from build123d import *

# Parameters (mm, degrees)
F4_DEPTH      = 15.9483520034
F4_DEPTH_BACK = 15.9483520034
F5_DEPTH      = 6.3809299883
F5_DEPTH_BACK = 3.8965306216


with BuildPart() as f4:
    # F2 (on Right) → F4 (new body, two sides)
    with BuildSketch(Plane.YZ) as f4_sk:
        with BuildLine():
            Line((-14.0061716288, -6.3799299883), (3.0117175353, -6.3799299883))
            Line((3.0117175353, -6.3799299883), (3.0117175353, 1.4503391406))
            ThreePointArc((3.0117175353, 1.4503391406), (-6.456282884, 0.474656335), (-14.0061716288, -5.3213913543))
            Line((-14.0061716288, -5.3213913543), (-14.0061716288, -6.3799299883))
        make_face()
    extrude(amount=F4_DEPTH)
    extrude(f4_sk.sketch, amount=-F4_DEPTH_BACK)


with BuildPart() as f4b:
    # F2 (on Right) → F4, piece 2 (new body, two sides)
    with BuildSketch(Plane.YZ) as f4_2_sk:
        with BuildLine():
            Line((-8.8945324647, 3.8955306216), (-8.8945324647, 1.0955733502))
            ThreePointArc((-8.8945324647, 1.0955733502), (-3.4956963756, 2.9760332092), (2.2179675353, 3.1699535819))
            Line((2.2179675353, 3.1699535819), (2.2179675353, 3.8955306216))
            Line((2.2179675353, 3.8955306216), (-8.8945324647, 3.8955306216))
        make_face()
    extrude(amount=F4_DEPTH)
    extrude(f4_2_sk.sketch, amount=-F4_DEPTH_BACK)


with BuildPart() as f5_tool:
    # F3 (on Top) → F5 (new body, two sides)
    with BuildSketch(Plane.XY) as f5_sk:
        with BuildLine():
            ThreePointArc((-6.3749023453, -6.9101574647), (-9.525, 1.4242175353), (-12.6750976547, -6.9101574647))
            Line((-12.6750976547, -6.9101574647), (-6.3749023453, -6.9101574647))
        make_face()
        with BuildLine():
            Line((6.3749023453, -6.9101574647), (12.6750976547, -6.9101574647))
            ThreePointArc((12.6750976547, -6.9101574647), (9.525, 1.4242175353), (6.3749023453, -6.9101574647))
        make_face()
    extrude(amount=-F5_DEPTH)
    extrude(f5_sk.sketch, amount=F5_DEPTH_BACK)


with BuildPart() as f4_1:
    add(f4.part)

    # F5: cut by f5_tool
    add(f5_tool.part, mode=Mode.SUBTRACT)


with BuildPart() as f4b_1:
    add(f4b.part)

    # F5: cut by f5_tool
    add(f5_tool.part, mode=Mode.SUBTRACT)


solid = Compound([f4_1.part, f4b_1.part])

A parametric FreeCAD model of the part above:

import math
import FreeCAD as App
import Part
import Sketcher

V = App.Vector
Q = App.Units.Quantity

doc = App.newDocument("Part")
body = doc.addObject("PartDesign::Body", "Body")

sketch1 = doc.addObject("Sketcher::SketchObject", "Sketch")
body.addObject(sketch1)
sketch1.AttachmentSupport = (doc.YZ_Plane, [""])
sketch1.MapMode = "FlatFace"
sketch1.addGeometry([
    Part.LineSegment(V(-14.006172, -6.37993, 0), V(3.011718, -6.37993, 0)),
    Part.LineSegment(V(3.011718, -6.37993, 0), V(3.011718, 1.450339, 0)),
    Part.ArcOfCircle(Part.Circle(V(0, -15.750488, 0), V(0, 0, 1), 17.4625), math.radians(80.068671), math.radians(143.328363)),
    Part.LineSegment(V(-14.006172, -5.321391, 0), V(-14.006172, -6.37993, 0)),
], False)
sketch1.addConstraint([
    Sketcher.Constraint("Coincident", 0, 2, 1, 1),
    Sketcher.Constraint("Coincident", 1, 2, 2, 1),
    Sketcher.Constraint("Coincident", 2, 2, 3, 1),
    Sketcher.Constraint("Coincident", 3, 2, 0, 1),
    Sketcher.Constraint("Horizontal", 0),
    Sketcher.Constraint("Vertical", 1),
    Sketcher.Constraint("Vertical", 3),
    Sketcher.Constraint("PointOnObject", 2, 3, -2),
    Sketcher.Constraint("Radius", 2, Q("0.6875 in")),
    Sketcher.Constraint("DistanceY", -1, 1, 1, 2, Q("0.0571 in")),
    Sketcher.Constraint("DistanceX", 0, 1, 0, 2, 17.017889),
    Sketcher.Constraint("DistanceY", 1, 1, 1, 2, 7.830269),
    Sketcher.Constraint("DistanceY", 3, 2, 3, 1, 1.058539),
])
pad1 = doc.addObject("PartDesign::Pad", "Pad")
body.addObject(pad1)
pad1.Profile = sketch1
pad1.Type = "TwoLengths"
pad1.Length = 15.948352
pad1.Length2 = 15.948352
body2 = doc.addObject("PartDesign::Body", "Body001")

sketch2 = doc.addObject("Sketcher::SketchObject", "Sketch001")
body2.addObject(sketch2)
sketch2.AttachmentSupport = (doc.getObject("YZ_Plane001"), [""])
sketch2.MapMode = "FlatFace"
sketch2.addGeometry([
    Part.LineSegment(V(-8.894532, 3.895531, 0), V(-8.894532, 1.095573, 0)),
    Part.ArcOfCircle(Part.Circle(V(0, -15.750488, 0), V(0, 0, 1), 19.05), math.radians(83.31396), math.radians(117.833554)),
    Part.LineSegment(V(2.217968, 3.169954, 0), V(2.217968, 3.895531, 0)),
    Part.LineSegment(V(2.217968, 3.895531, 0), V(-8.894532, 3.895531, 0)),
], False)
sketch2.addConstraint([
    Sketcher.Constraint("Coincident", 0, 2, 1, 2),
    Sketcher.Constraint("Coincident", 1, 1, 2, 1),
    Sketcher.Constraint("Coincident", 2, 2, 3, 1),
    Sketcher.Constraint("Coincident", 3, 2, 0, 1),
    Sketcher.Constraint("Vertical", 0),
    Sketcher.Constraint("Vertical", 2),
    Sketcher.Constraint("Horizontal", 3),
    Sketcher.Constraint("PointOnObject", 1, 3, -2),
    Sketcher.Constraint("Radius", 1, Q("0.75 in")),
    Sketcher.Constraint("DistanceX", 3, 2, 3, 1, Q("0.4375 in")),
    Sketcher.Constraint("DistanceY", 0, 2, 0, 1, 2.799957),
    Sketcher.Constraint("DistanceY", 2, 1, 2, 2, 0.725577),
    Sketcher.Constraint("DistanceY", 1, 3, -1, 1, 15.750488),
])
pad2 = doc.addObject("PartDesign::Pad", "Pad001")
body2.addObject(pad2)
pad2.Profile = sketch2
pad2.Type = "TwoLengths"
pad2.Length = 15.948352
pad2.Length2 = 15.948352
body3 = doc.addObject("PartDesign::Body", "Body002")
body3.AllowCompound = True

sketch3 = doc.addObject("Sketcher::SketchObject", "Sketch002")
body3.addObject(sketch3)
sketch3.AttachmentSupport = (doc.getObject("XY_Plane002"), [""])
sketch3.MapMode = "FlatFace"
sketch3.addGeometry([
    Part.ArcOfCircle(Part.Circle(V(-9.525, -3.338282, 0), V(0, 0, 1), 4.7625), math.radians(-48.590378), math.radians(228.590378)),
    Part.LineSegment(V(-12.675098, -6.910157, 0), V(-6.374902, -6.910157, 0)),
    Part.LineSegment(V(6.374902, -6.910157, 0), V(12.675098, -6.910157, 0)),
    Part.ArcOfCircle(Part.Circle(V(9.525, -3.338282, 0), V(0, 0, 1), 4.7625), math.radians(-48.590378), math.radians(228.590378)),
], False)
sketch3.addConstraint([
    Sketcher.Constraint("Coincident", 0, 1, 1, 2),
    Sketcher.Constraint("Coincident", 1, 1, 0, 2),
    Sketcher.Constraint("Coincident", 2, 1, 3, 2),
    Sketcher.Constraint("Coincident", 3, 1, 2, 2),
    Sketcher.Constraint("Horizontal", 1),
    Sketcher.Constraint("Horizontal", 2),
    Sketcher.Constraint("Equal", 0, 3),
    Sketcher.Constraint("Symmetric", 0, 3, 3, 3, -2),
    Sketcher.Constraint("Horizontal", 1, 1, 2, 1),
    Sketcher.Constraint("Radius", 0, Q("0.1875 in")),
    Sketcher.Constraint("DistanceX", 0, 3, 3, 3, Q("0.75 in")),
    Sketcher.Constraint("DistanceY", 0, 1, 0, 3, Q("0.140625 in")),
    Sketcher.Constraint("DistanceY", 0, 3, -1, 1, 3.338282),
])
pad3 = doc.addObject("PartDesign::Pad", "Pad002")
body3.addObject(pad3)
pad3.Profile = sketch3
pad3.Type = "TwoLengths"
pad3.Length = 6.38093
pad3.Length2 = 3.896531
pad3.Reversed = True
doc.recompute()

body4 = doc.addObject("PartDesign::Body", "Body003")
body4.BaseFeature = body3
boolean = doc.addObject("PartDesign::Boolean", "Boolean")
body.addObject(boolean)
boolean.Type = "Cut"
boolean.addObjects([body4])
doc.recompute()

boolean2 = doc.addObject("PartDesign::Boolean", "Boolean001")
body2.addObject(boolean2)
boolean2.Type = "Cut"
boolean2.addObjects([body3])

doc.recompute()
